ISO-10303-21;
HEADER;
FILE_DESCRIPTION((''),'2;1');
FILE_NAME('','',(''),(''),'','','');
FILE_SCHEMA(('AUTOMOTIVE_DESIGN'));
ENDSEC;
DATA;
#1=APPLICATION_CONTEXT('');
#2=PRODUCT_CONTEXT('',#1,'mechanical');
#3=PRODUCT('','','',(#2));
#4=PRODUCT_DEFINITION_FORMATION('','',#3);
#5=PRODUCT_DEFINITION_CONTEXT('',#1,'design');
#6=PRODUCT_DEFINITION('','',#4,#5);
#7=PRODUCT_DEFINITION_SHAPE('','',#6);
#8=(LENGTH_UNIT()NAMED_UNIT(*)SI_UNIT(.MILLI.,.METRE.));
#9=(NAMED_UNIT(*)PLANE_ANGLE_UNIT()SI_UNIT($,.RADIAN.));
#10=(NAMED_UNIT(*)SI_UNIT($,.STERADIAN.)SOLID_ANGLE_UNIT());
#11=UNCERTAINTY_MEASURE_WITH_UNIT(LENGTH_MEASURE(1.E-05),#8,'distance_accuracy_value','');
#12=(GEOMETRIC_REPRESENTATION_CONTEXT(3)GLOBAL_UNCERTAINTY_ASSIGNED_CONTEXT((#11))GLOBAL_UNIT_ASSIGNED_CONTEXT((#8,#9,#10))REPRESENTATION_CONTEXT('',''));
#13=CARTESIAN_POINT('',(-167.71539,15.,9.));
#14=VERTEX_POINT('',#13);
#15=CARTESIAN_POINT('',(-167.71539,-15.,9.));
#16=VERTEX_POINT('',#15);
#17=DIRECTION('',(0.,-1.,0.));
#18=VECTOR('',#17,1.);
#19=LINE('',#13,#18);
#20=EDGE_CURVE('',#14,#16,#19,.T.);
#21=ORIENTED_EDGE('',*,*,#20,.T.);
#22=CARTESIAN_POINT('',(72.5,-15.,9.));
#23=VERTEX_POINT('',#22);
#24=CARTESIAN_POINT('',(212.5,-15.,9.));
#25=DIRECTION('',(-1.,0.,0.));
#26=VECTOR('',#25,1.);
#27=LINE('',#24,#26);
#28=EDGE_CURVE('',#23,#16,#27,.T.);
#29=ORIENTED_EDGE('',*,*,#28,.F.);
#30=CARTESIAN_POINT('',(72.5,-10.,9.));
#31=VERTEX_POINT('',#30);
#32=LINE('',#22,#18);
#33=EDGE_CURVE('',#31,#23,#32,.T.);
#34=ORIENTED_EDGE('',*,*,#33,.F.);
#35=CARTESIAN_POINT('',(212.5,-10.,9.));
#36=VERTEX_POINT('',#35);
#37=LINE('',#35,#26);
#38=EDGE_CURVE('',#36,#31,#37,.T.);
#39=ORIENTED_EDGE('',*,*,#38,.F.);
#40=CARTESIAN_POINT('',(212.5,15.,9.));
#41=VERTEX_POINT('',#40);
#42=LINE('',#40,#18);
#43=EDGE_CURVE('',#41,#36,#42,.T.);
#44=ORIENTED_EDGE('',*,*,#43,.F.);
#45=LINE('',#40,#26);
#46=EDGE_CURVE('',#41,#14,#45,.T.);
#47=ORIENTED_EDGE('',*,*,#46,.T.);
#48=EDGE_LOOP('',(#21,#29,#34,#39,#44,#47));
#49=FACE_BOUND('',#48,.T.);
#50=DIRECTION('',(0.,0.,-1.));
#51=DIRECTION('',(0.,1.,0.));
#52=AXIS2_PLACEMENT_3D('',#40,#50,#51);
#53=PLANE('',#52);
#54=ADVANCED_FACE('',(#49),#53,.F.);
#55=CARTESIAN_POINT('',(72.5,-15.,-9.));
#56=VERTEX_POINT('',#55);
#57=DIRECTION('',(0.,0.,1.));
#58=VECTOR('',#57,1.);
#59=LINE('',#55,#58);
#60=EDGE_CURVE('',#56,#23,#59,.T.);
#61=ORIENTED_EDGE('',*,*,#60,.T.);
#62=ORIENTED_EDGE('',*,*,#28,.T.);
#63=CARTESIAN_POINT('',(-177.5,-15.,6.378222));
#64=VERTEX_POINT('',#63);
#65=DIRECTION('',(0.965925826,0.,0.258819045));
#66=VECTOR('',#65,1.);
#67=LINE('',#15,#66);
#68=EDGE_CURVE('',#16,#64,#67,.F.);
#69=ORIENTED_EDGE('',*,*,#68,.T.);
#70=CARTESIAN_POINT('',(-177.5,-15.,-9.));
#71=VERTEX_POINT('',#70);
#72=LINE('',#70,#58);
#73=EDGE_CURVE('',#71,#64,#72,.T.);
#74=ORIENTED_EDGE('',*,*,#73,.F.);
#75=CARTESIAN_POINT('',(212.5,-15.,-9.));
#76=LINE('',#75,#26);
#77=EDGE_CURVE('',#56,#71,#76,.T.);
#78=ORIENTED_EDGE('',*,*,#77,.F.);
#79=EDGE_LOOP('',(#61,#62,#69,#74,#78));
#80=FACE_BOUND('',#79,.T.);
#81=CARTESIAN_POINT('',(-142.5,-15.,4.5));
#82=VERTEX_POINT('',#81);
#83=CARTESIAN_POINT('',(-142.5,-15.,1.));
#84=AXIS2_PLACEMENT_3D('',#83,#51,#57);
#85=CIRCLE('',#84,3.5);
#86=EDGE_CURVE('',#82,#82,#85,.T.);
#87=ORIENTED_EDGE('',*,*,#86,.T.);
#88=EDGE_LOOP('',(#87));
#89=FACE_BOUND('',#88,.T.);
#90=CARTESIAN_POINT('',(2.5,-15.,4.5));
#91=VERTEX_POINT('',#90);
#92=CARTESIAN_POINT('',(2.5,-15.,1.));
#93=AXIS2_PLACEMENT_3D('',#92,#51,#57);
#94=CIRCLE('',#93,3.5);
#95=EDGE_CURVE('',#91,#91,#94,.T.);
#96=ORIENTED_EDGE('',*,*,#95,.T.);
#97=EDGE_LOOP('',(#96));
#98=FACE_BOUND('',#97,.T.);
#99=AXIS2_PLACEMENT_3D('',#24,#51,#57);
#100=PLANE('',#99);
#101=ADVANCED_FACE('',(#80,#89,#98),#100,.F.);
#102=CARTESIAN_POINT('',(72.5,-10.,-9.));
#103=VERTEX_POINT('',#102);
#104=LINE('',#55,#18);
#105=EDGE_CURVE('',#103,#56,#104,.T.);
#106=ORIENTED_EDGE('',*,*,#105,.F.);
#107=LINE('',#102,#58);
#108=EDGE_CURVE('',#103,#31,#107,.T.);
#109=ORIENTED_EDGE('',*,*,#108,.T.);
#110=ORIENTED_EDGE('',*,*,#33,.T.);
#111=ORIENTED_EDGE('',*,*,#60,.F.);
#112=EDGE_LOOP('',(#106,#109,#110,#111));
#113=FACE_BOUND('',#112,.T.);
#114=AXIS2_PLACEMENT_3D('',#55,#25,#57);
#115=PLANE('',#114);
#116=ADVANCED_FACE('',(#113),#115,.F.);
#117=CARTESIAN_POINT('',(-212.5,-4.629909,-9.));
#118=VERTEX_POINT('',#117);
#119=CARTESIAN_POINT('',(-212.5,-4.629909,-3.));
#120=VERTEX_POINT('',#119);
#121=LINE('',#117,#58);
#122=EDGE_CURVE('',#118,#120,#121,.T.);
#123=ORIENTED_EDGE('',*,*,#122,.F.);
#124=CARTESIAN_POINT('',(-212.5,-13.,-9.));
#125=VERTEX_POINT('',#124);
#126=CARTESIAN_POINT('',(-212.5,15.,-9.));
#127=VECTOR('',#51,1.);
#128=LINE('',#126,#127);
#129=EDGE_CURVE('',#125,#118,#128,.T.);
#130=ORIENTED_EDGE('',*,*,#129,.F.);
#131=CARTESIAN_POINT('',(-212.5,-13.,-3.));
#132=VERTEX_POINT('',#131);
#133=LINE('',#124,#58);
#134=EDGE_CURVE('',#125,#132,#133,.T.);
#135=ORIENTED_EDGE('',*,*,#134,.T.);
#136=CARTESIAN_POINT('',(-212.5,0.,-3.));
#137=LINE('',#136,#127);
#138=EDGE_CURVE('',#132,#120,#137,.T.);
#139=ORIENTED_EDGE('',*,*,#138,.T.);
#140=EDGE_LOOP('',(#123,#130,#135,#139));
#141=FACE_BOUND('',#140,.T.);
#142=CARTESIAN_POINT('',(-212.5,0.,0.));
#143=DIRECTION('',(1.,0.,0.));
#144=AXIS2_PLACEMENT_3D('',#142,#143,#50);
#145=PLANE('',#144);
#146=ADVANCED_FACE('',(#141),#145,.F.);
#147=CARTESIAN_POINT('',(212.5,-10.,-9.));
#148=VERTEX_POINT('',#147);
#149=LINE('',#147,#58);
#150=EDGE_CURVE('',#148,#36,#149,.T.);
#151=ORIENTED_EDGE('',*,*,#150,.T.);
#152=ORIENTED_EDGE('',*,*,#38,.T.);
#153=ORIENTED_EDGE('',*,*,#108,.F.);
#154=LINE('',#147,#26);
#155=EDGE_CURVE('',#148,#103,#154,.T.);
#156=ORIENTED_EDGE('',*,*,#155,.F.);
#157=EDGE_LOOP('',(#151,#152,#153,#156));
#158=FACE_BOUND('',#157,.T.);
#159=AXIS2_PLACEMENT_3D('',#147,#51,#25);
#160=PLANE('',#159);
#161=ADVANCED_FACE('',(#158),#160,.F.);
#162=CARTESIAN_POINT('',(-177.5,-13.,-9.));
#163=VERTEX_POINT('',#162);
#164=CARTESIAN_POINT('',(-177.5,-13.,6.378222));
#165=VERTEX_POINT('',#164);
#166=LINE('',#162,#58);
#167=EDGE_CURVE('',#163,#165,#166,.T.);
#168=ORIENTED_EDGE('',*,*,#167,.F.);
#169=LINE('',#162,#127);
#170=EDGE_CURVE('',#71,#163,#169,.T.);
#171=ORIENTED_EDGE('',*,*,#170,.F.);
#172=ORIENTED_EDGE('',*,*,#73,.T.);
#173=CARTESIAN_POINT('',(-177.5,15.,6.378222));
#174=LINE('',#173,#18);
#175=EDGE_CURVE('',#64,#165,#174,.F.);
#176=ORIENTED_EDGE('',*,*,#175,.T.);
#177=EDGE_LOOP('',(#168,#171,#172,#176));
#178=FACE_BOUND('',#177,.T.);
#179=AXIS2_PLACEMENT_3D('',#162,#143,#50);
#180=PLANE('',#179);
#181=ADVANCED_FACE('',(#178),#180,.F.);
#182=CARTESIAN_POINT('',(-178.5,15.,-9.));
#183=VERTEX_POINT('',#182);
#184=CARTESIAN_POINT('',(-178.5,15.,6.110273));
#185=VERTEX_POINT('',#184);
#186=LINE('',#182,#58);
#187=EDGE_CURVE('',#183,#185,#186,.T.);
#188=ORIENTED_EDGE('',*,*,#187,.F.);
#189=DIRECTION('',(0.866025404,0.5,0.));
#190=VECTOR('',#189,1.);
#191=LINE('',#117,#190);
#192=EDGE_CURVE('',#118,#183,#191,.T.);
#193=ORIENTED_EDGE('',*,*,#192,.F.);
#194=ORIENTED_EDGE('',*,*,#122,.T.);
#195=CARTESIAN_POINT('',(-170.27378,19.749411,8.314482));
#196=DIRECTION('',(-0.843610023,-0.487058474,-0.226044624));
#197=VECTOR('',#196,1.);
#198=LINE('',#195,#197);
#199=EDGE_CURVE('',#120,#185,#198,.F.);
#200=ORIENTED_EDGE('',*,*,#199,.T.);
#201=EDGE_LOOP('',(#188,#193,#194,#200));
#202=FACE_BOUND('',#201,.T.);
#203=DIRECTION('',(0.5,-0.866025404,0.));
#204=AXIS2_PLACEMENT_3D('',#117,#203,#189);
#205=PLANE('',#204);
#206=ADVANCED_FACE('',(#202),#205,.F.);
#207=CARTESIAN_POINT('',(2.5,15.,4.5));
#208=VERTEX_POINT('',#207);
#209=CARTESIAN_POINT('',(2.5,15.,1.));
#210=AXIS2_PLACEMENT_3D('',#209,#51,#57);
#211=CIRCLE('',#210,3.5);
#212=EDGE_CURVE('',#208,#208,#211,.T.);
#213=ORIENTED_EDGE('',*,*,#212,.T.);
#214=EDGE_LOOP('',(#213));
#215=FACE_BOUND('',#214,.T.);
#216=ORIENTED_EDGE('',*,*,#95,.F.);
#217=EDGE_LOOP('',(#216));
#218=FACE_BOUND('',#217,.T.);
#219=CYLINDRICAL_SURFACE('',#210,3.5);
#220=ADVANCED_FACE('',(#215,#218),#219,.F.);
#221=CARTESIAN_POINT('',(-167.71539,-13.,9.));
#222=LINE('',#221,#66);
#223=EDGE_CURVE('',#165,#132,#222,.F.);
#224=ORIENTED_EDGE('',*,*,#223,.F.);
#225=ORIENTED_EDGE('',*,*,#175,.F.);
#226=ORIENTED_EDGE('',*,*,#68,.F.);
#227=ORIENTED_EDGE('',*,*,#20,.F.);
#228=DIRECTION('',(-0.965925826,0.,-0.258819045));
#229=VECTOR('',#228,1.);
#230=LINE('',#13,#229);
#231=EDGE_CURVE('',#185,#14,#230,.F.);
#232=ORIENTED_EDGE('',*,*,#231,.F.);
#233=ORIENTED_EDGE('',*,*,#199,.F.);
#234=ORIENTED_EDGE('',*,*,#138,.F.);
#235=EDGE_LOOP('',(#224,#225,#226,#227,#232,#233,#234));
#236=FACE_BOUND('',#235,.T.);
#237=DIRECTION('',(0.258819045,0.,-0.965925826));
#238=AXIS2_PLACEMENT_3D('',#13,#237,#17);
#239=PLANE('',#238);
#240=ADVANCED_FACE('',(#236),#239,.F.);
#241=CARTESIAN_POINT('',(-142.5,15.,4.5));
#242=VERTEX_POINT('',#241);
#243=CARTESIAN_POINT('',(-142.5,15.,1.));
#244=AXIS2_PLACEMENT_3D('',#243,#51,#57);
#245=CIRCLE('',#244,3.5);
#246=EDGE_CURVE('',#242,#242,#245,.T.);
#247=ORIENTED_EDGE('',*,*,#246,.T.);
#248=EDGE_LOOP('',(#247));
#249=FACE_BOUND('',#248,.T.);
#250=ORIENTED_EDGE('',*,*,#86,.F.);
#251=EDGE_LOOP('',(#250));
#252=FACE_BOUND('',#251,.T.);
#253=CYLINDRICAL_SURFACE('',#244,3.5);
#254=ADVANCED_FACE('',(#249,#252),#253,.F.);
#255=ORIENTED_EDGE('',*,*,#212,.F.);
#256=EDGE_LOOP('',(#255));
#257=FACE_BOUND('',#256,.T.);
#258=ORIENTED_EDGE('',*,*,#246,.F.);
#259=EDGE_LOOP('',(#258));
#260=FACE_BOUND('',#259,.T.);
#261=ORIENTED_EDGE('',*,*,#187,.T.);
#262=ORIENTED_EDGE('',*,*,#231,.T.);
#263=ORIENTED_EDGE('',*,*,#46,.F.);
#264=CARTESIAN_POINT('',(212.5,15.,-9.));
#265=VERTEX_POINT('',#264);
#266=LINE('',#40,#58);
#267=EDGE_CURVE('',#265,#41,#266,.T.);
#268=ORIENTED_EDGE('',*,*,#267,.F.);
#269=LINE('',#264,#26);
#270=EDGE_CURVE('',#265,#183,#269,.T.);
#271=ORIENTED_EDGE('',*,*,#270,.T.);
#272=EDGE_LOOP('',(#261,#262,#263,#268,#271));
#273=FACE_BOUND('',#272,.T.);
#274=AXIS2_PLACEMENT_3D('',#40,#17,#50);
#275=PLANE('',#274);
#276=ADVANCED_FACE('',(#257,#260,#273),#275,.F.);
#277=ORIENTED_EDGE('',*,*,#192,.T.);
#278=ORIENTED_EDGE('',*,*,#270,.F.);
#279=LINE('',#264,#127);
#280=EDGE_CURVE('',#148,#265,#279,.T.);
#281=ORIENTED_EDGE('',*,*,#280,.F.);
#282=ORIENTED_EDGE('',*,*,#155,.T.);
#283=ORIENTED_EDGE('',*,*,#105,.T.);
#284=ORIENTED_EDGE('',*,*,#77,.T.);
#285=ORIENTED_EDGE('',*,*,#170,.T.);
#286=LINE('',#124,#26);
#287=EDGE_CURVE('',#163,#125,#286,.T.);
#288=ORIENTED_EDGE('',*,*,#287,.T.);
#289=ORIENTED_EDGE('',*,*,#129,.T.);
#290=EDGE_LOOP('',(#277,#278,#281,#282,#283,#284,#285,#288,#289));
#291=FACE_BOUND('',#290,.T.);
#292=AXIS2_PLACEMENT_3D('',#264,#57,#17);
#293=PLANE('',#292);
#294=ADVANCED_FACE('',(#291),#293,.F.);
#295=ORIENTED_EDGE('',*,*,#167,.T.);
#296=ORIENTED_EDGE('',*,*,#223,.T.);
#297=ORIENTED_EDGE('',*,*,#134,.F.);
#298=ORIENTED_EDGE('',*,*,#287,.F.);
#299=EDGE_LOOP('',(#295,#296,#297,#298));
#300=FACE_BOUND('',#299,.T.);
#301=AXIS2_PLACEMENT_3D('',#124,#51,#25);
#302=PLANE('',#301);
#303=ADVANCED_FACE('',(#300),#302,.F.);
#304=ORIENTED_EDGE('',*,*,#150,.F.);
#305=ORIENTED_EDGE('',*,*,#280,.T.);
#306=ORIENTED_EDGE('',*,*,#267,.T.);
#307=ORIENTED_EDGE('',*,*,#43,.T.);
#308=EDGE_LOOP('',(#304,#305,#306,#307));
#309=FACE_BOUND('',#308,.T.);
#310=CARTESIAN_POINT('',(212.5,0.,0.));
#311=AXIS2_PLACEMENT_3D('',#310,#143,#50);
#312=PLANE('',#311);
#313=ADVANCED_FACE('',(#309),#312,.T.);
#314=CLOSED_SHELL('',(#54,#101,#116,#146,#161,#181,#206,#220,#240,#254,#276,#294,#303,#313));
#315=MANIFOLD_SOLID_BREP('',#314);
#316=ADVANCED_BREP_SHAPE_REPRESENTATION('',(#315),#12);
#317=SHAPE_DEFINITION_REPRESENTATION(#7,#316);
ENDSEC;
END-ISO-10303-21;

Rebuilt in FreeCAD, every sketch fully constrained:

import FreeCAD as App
import Part
import Sketcher
Q = App.Units.Quantity


def edges_at(feature, points):
    """Names of the edges that pass closest to the given points."""
    edges = feature.Shape.Edges
    near = lambda p: min(range(len(edges)), key=lambda i: edges[i].distToShape(Part.Vertex(*p))[0])
    return sorted({f"Edge{near(p) + 1}" for p in points})


def add_polygon(sketch, points):
    """Adds a closed chain of lines whose ends are joined by coincident constraints."""
    first, n = sketch.GeometryCount, len(points)
    for a, b in zip(points, points[1:] + points[:1]):
        sketch.addGeometry(Part.LineSegment(App.Vector(*a, 0), App.Vector(*b, 0)), False)
    for i in range(n):
        sketch.addConstraint(Sketcher.Constraint("Coincident", first + i, 2, first + (i + 1) % n, 1))

doc = App.newDocument("Part")
params = doc.addObject("Spreadsheet::Sheet", "Params")
for row, (alias, value) in enumerate([
    ("sketch1_width", "30 mm"),
    ("sketch1_height", "18 mm"),
    ("pad1_length", "425 mm"),
    ("chamfer_size", "12 mm"),
    ("chamfer_size2", "44.78461 mm"),
    ("sketch2_diameter", "7 mm"),
    ("hole_diameter", "7 mm"),
    ("sketch3_width", "140 mm"),
    ("sketch3_width2", "35 mm"),
    ("sketch3_height", "5 mm"),
    ("sketch3_height2", "2 mm"),
    ("sketch4_width", "34 mm"),
], start=1):
    params.set(f"A{row}", alias)
    params.set(f"B{row}", "=" + value)
    params.setAlias(f"B{row}", alias)

body = doc.addObject("PartDesign::Body", "Body")

sketch1 = doc.addObject("Sketcher::SketchObject", "Sketch")
body.addObject(sketch1)
sketch1.AttachmentSupport = (doc.YZ_Plane, [""])
sketch1.MapMode = "FlatFace"
add_polygon(sketch1, [(15, 9), (-15, 9), (-15, -9), (15, -9)])
sketch1.addConstraint(Sketcher.Constraint("Horizontal", 0))
sketch1.addConstraint(Sketcher.Constraint("Vertical", 1))
sketch1.addConstraint(Sketcher.Constraint("Horizontal", 2))
sketch1.addConstraint(Sketcher.Constraint("Vertical", 3))
sketch1.addConstraint(Sketcher.Constraint("Symmetric", 0, 2, 2, 2, -1, 1))
sketch1.addConstraint(Sketcher.Constraint("DistanceX", 0, 2, 0, 1, 30.0))
sketch1.addConstraint(Sketcher.Constraint("DistanceY", 1, 2, 1, 1, 18.0))
sketch1.setExpression("Constraints[9]", "Params.sketch1_width")
sketch1.setExpression("Constraints[10]", "Params.sketch1_height")
pad1 = doc.addObject("PartDesign::Pad", "Pad")
body.addObject(pad1)
pad1.Profile = sketch1
pad1.setExpression("Length", "Params.pad1_length")
pad1.Midplane = True
doc.recompute()

chamfer = doc.addObject("PartDesign::Chamfer", "Chamfer")
body.addObject(chamfer)
chamfer.Base = (pad1, edges_at(pad1, [(-212.5, 0, 9)]))
chamfer.ChamferType = "Two distances"
chamfer.setExpression("Size", "Params.chamfer_size")
chamfer.setExpression("Size2", "Params.chamfer_size2")
chamfer.FlipDirection = True

sketch2 = doc.addObject("Sketcher::SketchObject", "Sketch001")
body.addObject(sketch2)
sketch2.AttachmentSupport = (doc.XZ_Plane, [""])
sketch2.MapMode = "FlatFace"
sketch2.AttachmentOffset = App.Placement(App.Vector(0, 0, -15), App.Rotation())
sketch2.addGeometry(Part.Circle(App.Vector(-142.5, 1, 0), App.Vector(0, 0, 1), 3.5), False)
sketch2.addGeometry(Part.Circle(App.Vector(2.5, 1, 0), App.Vector(0, 0, 1), 3.5), False)
sketch2.addConstraint(Sketcher.Constraint("Equal", 0, 1))
sketch2.addConstraint(Sketcher.Constraint("Horizontal", 0, 3, 1, 3))
sketch2.addConstraint(Sketcher.Constraint("Diameter", 0, 7.0))
sketch2.addConstraint(Sketcher.Constraint("DistanceY", -1, 1, 0, 3, 1.0))
sketch2.addConstraint(Sketcher.Constraint("DistanceX", 0, 3, 1, 3, 145.0))
sketch2.addConstraint(Sketcher.Constraint("DistanceX", 0, 3, -1, 1, 142.5))
sketch2.setExpression("Constraints[2]", "Params.sketch2_diameter")
doc.recompute()
hole = doc.addObject("PartDesign::Hole", "Hole")
body.addObject(hole)
hole.Profile = sketch2
hole.ThreadType = "None"
hole.setExpression("Diameter", "Params.hole_diameter")
hole.DepthType = "ThroughAll"
hole.Reversed = True

sketch3 = doc.addObject("Sketcher::SketchObject", "Sketch002")
body.addObject(sketch3)
sketch3.AttachmentSupport = (doc.XY_Plane, [""])
sketch3.MapMode = "FlatFace"
sketch3.AttachmentOffset = App.Placement(App.Vector(0, 0, 9), App.Rotation())
add_polygon(sketch3, [(72.5, -10), (72.5, -15), (212.5, -15), (212.5, -10)])
add_polygon(sketch3, [(-212.5, -13), (-212.5, -15), (-177.5, -15), (-177.5, -13)])
sketch3.addConstraint(Sketcher.Constraint("Vertical", 0))
sketch3.addConstraint(Sketcher.Constraint("Horizontal", 1))
sketch3.addConstraint(Sketcher.Constraint("Vertical", 2))
sketch3.addConstraint(Sketcher.Constraint("Horizontal", 3))
sketch3.addConstraint(Sketcher.Constraint("Vertical", 4))
sketch3.addConstraint(Sketcher.Constraint("Horizontal", 5))
sketch3.addConstraint(Sketcher.Constraint("Vertical", 6))
sketch3.addConstraint(Sketcher.Constraint("Horizontal", 7))
sketch3.addConstraint(Sketcher.Constraint("Symmetric", 1, 2, 4, 2, -2))
sketch3.addConstraint(Sketcher.Constraint("DistanceX", 1, 1, 1, 2, 140.0))
sketch3.addConstraint(Sketcher.Constraint("DistanceX", 5, 1, 5, 2, 35.0))
sketch3.addConstraint(Sketcher.Constraint("DistanceY", 0, 2, 0, 1, 5.0))
sketch3.addConstraint(Sketcher.Constraint("DistanceY", 4, 2, 4, 1, 2.0))
sketch3.addConstraint(Sketcher.Constraint("DistanceY", 0, 2, -1, 1, 15.0))
sketch3.addConstraint(Sketcher.Constraint("DistanceX", 4, 2, 0, 2, 285.0))
sketch3.setExpression("Constraints[17]", "Params.sketch3_width")
sketch3.setExpression("Constraints[18]", "Params.sketch3_width2")
sketch3.setExpression("Constraints[19]", "Params.sketch3_height")
sketch3.setExpression("Constraints[20]", "Params.sketch3_height2")
pocket1 = doc.addObject("PartDesign::Pocket", "Pocket")
body.addObject(pocket1)
pocket1.Profile = sketch3
pocket1.Type = "ThroughAll"

sketch4 = doc.addObject("Sketcher::SketchObject", "Sketch003")
body.addObject(sketch4)
sketch4.AttachmentSupport = (doc.XY_Plane, [""])
sketch4.MapMode = "FlatFace"
sketch4.AttachmentOffset = App.Placement(App.Vector(0, 0, 9), App.Rotation())
add_polygon(sketch4, [(-178.5, 15), (-212.5, 15), (-212.5, -4.629909)])
sketch4.addConstraint(Sketcher.Constraint("Horizontal", 0))
sketch4.addConstraint(Sketcher.Constraint("Vertical", 1))
sketch4.addConstraint(Sketcher.Constraint("DistanceX", 0, 2, 0, 1, 34.0))
sketch4.addConstraint(Sketcher.Constraint("Angle", 2, Q("30 deg")))
sketch4.addConstraint(Sketcher.Constraint("DistanceY", -1, 1, 0, 2, 15.0))
sketch4.addConstraint(Sketcher.Constraint("DistanceX", 0, 2, -1, 1, 212.5))
sketch4.setExpression("Constraints[5]", "Params.sketch4_width")
pocket2 = doc.addObject("PartDesign::Pocket", "Pocket001")
body.addObject(pocket2)
pocket2.Profile = sketch4
pocket2.Type = "ThroughAll"

doc.recompute()
